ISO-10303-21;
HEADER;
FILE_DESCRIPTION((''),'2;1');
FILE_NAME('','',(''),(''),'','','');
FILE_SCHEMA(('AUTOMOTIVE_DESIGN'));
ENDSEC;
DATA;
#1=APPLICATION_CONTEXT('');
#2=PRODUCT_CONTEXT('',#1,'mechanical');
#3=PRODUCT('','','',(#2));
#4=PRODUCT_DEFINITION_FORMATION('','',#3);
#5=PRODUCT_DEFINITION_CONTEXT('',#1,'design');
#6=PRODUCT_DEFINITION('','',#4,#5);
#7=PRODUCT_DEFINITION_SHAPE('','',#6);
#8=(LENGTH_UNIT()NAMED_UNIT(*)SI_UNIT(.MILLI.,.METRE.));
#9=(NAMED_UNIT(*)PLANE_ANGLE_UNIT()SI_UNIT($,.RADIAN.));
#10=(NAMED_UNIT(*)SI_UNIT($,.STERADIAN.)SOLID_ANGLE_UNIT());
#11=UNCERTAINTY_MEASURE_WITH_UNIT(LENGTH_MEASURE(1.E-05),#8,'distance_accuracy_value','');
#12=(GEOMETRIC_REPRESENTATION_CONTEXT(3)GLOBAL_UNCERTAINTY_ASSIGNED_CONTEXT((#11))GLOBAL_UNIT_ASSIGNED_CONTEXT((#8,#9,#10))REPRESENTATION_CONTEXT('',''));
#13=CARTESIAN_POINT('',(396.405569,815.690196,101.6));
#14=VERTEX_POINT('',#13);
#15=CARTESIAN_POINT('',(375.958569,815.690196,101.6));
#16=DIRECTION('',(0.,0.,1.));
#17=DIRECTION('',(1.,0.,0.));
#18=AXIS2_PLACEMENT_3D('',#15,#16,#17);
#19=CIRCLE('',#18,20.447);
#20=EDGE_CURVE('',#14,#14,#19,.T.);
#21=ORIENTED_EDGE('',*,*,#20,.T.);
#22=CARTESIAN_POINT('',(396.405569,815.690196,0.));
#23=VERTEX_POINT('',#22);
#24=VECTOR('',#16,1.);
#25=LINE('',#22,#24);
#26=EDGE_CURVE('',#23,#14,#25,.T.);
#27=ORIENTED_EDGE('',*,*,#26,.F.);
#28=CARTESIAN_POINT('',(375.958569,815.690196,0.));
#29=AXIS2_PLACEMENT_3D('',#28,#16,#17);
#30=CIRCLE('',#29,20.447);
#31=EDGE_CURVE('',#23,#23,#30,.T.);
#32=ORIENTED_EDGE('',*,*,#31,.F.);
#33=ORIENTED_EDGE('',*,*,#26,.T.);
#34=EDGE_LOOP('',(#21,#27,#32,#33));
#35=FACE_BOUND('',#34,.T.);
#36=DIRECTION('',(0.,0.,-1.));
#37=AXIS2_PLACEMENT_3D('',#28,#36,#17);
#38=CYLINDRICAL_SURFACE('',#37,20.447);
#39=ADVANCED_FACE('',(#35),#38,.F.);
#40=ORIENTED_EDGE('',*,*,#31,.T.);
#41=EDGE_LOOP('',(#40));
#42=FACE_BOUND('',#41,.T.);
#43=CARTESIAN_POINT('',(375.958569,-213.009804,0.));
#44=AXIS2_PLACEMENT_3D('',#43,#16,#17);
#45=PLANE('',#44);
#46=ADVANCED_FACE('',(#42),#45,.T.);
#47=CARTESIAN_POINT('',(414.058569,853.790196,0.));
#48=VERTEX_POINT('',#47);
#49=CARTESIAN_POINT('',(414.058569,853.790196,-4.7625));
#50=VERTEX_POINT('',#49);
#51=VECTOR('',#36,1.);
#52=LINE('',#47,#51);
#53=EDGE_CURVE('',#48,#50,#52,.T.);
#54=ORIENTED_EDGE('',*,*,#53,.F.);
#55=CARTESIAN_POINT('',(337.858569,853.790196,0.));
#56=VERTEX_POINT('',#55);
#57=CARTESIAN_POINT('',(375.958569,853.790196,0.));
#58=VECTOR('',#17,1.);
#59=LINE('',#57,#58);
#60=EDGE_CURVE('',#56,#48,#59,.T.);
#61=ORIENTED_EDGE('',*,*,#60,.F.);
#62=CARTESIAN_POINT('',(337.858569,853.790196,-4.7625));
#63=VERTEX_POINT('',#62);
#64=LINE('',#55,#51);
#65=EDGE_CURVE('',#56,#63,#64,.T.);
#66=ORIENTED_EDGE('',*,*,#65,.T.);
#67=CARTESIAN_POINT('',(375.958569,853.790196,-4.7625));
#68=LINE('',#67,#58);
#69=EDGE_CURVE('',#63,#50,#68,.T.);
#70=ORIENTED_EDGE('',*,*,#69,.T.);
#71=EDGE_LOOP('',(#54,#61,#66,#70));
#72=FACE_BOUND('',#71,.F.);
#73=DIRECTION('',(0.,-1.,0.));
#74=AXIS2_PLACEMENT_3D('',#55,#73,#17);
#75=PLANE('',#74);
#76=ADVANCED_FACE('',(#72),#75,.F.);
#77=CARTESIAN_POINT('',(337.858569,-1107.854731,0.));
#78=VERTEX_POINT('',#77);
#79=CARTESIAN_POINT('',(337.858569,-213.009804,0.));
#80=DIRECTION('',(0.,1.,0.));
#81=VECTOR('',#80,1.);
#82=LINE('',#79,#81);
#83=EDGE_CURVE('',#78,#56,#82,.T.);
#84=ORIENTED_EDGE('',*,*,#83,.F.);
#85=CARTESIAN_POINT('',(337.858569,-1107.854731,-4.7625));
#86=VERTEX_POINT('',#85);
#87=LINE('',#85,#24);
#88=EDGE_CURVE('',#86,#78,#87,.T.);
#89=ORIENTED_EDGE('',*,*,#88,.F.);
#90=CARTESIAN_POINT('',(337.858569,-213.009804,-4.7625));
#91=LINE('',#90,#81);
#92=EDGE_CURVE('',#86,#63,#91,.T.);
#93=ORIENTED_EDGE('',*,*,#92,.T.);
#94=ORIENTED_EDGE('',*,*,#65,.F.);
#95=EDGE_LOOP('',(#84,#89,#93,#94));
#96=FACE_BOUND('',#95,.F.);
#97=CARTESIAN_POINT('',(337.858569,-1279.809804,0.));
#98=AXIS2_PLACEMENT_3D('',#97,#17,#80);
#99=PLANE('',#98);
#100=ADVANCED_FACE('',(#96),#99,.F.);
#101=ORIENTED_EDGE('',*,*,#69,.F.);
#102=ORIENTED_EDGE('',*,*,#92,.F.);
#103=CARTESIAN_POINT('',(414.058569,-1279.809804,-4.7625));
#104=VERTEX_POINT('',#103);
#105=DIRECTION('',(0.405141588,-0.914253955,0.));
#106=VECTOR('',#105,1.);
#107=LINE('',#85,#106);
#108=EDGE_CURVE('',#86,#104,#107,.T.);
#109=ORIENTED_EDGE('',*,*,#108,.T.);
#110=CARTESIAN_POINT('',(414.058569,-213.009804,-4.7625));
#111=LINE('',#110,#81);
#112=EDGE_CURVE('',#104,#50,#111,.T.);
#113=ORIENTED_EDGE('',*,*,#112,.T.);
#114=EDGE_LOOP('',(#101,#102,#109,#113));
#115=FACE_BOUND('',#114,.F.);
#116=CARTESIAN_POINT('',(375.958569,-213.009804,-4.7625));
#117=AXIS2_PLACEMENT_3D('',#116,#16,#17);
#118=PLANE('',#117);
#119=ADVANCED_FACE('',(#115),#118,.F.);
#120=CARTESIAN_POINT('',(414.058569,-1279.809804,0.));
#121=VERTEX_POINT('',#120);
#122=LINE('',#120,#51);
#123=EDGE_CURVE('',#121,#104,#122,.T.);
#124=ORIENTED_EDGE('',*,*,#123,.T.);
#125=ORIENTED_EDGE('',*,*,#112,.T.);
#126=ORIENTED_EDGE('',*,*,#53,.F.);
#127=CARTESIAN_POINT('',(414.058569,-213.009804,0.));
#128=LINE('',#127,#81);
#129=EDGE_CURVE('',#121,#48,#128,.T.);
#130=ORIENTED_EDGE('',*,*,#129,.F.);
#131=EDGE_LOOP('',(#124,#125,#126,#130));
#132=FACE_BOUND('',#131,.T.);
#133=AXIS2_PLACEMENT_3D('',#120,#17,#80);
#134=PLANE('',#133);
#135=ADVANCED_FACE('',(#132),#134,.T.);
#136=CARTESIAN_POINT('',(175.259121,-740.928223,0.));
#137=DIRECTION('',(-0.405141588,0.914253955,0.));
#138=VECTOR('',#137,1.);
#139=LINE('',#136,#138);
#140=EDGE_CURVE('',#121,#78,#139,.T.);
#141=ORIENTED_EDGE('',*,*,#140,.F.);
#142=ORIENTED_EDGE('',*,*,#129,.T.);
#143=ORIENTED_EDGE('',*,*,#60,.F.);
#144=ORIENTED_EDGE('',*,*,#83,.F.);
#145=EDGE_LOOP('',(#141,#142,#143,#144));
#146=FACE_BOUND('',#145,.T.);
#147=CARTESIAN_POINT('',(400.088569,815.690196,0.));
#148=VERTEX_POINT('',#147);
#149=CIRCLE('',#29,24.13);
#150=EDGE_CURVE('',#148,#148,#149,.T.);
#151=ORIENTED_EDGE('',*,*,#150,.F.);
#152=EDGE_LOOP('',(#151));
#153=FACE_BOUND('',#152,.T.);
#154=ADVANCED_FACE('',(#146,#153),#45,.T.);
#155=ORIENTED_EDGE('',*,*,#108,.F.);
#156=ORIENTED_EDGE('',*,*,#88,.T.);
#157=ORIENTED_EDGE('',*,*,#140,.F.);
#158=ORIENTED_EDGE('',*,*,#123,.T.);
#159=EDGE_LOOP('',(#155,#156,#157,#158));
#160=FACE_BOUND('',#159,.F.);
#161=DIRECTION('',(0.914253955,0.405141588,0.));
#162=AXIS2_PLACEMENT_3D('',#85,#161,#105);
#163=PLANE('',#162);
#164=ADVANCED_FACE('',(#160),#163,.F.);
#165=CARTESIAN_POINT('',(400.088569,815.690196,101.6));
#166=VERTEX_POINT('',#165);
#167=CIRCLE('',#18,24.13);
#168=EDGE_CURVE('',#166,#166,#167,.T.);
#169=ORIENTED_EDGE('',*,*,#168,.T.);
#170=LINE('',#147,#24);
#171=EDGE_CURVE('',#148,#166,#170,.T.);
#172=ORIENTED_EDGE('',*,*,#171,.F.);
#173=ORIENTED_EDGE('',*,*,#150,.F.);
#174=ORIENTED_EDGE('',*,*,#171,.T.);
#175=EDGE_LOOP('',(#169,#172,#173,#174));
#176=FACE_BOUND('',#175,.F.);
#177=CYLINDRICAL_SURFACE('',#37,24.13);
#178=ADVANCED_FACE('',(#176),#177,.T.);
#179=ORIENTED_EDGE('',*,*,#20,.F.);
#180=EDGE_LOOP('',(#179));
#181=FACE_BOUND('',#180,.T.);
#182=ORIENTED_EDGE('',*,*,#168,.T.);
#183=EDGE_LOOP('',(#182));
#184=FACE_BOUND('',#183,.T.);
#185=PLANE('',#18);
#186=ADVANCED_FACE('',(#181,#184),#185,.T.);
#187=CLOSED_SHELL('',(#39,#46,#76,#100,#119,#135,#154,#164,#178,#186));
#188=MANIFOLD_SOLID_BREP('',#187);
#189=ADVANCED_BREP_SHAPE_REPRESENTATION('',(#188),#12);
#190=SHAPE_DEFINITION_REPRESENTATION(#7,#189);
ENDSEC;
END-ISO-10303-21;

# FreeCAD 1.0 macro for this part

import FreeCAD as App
import Part
import Sketcher
from FreeCAD import Vector
Q = App.Units.Quantity


def add_polygon(sketch, points):
    """Adds a closed chain of lines whose ends are joined by coincident constraints."""
    first, n = sketch.GeometryCount, len(points)
    for a, b in zip(points, points[1:] + points[:1]):
        sketch.addGeometry(Part.LineSegment(App.Vector(*a, 0), App.Vector(*b, 0)), False)
    for i in range(n):
        sketch.addConstraint(Sketcher.Constraint("Coincident", first + i, 2, first + (i + 1) % n, 1))

doc = App.newDocument("Part")
body = doc.addObject("PartDesign::Body", "Body")

# Sketch on XY plane
sketch1 = body.newObject("Sketcher::SketchObject", "Sketch")
sketch1.AttachmentSupport = (doc.getObject("XY_Plane"), [""])
sketch1.MapMode = "FlatFace"
add_polygon(sketch1, [(337.858569, 853.790196), (337.858569, -1279.809804), (414.058569, -1279.809804), (414.058569, 853.790196)])  # lines 0-3
sketch1.addConstraint([
    Sketcher.Constraint("Vertical", 0),
    Sketcher.Constraint("Horizontal", 1),
    Sketcher.Constraint("Vertical", 2),
    Sketcher.Constraint("Horizontal", 3),
    Sketcher.Constraint("DistanceX", 1, 1, 1, 2, Q("3 in")),
    Sketcher.Constraint("DistanceY", 0, 2, 0, 1, Q("84 in")),
    Sketcher.Constraint("DistanceX", -1, 1, 0, 2, Q("337.858569 mm")),
    Sketcher.Constraint("DistanceY", 0, 2, -1, 1, Q("1279.809804 mm")),
])
pad1 = body.newObject("PartDesign::Pad", "Pad")
pad1.Profile = sketch1
pad1.Length = Q("0.1875 in")
pad1.Reversed = True

# Sketch on XY plane
sketch2 = body.newObject("Sketcher::SketchObject", "Sketch001")
sketch2.AttachmentSupport = (doc.getObject("XY_Plane"), [""])
sketch2.MapMode = "FlatFace"
sketch2.addGeometry([
    Part.Circle(Vector(375.958569, 815.690196, 0), Vector(0, 0, 1), 24.13),
    Part.Circle(Vector(375.958569, 815.690196, 0), Vector(0, 0, 1), 20.447),
], False)
sketch2.addConstraint([
    Sketcher.Constraint("Coincident", 1, 3, 0, 3),
    Sketcher.Constraint("Diameter", 0, Q("1.9 in")),
    Sketcher.Constraint("Diameter", 1, Q("1.61 in")),
    Sketcher.Constraint("DistanceX", -1, 1, 0, 3, Q("375.958569 mm")),
    Sketcher.Constraint("DistanceY", -1, 1, 0, 3, Q("815.690196 mm")),
])
pad2 = body.newObject("PartDesign::Pad", "Pad001")
pad2.Profile = sketch2
pad2.Length = Q("4 in")

# Sketch on XY plane
sketch3 = body.newObject("Sketcher::SketchObject", "Sketch002")
sketch3.AttachmentSupport = (doc.getObject("XY_Plane"), [""])
sketch3.MapMode = "FlatFace"
sketch3.AttachmentOffset = App.Placement(Vector(0, 0, -0.1875 * 25.4), App.Rotation())
add_polygon(sketch3, [(337.858569, -1107.854731), (414.058569, -1279.809804), (337.858569, -1279.809804)])  # lines 0-2
sketch3.addConstraint([
    Sketcher.Constraint("Horizontal", 1),
    Sketcher.Constraint("Vertical", 2),
    Sketcher.Constraint("DistanceX", 1, 2, 1, 1, Q("3 in")),
    Sketcher.Constraint("Angle", 0, Q("-66.1 deg")),
    Sketcher.Constraint("DistanceX", -1, 1, 0, 2, Q("414.058569 mm")),
    Sketcher.Constraint("DistanceY", 2, 2, -1, 1, Q("1107.854731 mm")),
])
pocket1 = body.newObject("PartDesign::Pocket", "Pocket")
pocket1.Profile = sketch3
pocket1.Length = Q("1.41 in")
pocket1.Reversed = True

doc.recompute()
